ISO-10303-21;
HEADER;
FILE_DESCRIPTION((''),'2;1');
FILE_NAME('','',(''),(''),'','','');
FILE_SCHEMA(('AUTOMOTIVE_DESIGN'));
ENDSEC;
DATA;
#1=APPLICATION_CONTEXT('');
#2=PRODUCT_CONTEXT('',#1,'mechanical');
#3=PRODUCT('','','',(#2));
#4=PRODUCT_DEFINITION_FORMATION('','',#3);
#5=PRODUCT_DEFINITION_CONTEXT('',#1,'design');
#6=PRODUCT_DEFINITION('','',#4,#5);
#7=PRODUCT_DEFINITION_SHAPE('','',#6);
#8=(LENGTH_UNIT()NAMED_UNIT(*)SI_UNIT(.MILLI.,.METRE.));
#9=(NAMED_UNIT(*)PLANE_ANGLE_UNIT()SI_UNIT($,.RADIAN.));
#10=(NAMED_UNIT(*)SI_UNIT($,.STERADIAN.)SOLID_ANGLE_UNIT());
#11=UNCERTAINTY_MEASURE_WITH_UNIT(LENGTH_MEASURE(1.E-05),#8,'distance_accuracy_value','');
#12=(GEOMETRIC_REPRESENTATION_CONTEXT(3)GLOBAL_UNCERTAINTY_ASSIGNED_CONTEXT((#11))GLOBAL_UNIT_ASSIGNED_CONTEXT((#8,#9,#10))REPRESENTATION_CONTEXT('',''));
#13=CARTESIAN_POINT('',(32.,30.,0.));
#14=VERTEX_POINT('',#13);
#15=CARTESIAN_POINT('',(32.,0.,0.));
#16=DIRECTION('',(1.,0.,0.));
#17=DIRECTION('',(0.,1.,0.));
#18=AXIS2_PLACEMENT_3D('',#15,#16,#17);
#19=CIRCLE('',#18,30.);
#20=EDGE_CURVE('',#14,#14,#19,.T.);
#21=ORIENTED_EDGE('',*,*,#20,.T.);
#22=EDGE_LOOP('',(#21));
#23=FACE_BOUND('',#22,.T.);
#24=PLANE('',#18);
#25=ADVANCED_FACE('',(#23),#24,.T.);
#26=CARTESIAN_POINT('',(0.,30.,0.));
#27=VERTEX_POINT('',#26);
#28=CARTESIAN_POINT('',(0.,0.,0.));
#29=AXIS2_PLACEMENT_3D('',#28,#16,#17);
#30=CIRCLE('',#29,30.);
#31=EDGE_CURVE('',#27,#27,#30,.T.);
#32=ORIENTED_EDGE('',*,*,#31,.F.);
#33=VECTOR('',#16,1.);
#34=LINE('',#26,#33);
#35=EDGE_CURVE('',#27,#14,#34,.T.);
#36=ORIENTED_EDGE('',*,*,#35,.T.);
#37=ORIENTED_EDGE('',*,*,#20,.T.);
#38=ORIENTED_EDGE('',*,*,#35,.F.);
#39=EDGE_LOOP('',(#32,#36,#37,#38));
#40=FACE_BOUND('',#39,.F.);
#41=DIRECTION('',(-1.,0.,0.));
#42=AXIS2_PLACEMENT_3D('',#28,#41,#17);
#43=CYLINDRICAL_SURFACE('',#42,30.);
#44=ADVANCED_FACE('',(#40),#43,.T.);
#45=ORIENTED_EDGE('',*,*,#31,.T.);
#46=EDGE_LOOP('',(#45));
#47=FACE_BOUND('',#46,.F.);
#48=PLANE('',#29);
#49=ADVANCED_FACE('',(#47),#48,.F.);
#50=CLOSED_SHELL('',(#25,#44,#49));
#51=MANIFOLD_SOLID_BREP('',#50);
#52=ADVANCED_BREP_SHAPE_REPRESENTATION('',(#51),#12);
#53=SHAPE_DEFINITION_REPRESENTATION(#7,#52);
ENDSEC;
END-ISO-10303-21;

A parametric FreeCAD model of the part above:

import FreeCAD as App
import Part
import Sketcher
Q = App.Units.Quantity

doc = App.newDocument("Part")
body = doc.addObject("PartDesign::Body", "Body")

# Sketch on YZ plane
sketch1 = body.newObject("Sketcher::SketchObject", "Sketch")
sketch1.AttachmentSupport = (doc.getObject("YZ_Plane"), [""])
sketch1.MapMode = "FlatFace"
sketch1.addGeometry(Part.Circle(App.Vector(0, 0, 0), App.Vector(0, 0, 1), 30), False)
sketch1.addConstraint([
    Sketcher.Constraint("Coincident", 0, 3, -1, 1),
    Sketcher.Constraint("Diameter", 0, Q("60 mm")),
])
pad1 = body.newObject("PartDesign::Pad", "Pad")
pad1.Profile = sketch1
pad1.Length = 32

doc.recompute()
